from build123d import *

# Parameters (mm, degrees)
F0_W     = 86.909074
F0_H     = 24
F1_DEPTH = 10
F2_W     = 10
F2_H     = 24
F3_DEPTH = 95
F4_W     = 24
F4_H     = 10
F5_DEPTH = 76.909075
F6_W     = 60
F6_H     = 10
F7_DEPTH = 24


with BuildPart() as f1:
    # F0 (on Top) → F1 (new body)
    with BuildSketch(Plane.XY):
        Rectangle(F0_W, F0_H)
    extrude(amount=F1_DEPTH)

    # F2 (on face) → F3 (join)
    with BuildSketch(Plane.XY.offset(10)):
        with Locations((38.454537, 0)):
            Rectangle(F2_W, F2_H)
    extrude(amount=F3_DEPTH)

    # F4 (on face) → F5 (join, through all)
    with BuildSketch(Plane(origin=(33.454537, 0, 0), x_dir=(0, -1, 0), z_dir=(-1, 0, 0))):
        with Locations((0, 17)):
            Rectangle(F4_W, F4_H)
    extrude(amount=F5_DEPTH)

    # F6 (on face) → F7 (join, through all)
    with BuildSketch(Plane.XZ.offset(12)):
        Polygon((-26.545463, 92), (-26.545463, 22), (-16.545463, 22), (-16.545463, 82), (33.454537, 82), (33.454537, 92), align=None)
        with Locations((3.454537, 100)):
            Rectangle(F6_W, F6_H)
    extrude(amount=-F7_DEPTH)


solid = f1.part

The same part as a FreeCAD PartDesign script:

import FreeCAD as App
import Part
import Sketcher
Q = App.Units.Quantity

doc = App.newDocument("Part")
body = doc.addObject("PartDesign::Body", "Body")

sketch1 = doc.addObject("Sketcher::SketchObject", "Sketch")
body.addObject(sketch1)
sketch1.AttachmentSupport = (doc.XY_Plane, [""])
sketch1.MapMode = "FlatFace"
sketch1.addGeometry([
    Part.LineSegment(App.Vector(-43.454537, 12, 0), App.Vector(-43.454537, -12, 0)),
    Part.LineSegment(App.Vector(-43.454537, -12, 0), App.Vector(43.454537, -12, 0)),
    Part.LineSegment(App.Vector(43.454537, -12, 0), App.Vector(43.454537, 12, 0)),
    Part.LineSegment(App.Vector(43.454537, 12, 0), App.Vector(-43.454537, 12, 0)),
], False)
sketch1.addConstraint([
    Sketcher.Constraint("Coincident", 0, 2, 1, 1),
    Sketcher.Constraint("Coincident", 1, 2, 2, 1),
    Sketcher.Constraint("Coincident", 2, 2, 3, 1),
    Sketcher.Constraint("Coincident", 3, 2, 0, 1),
    Sketcher.Constraint("Vertical", 0),
    Sketcher.Constraint("Horizontal", 1),
    Sketcher.Constraint("Vertical", 2),
    Sketcher.Constraint("Horizontal", 3),
    Sketcher.Constraint("Symmetric", 0, 2, 2, 2, -1, 1),
    Sketcher.Constraint("DistanceY", 0, 2, 0, 1, Q("24 mm")),
    Sketcher.Constraint("DistanceX", 1, 1, 1, 2, Q("86.909074 mm")),
])
pad1 = doc.addObject("PartDesign::Pad", "Pad")
body.addObject(pad1)
pad1.Profile = sketch1
pad1.Length = 10

sketch2 = doc.addObject("Sketcher::SketchObject", "Sketch001")
body.addObject(sketch2)
sketch2.AttachmentSupport = (doc.XY_Plane, [""])
sketch2.MapMode = "FlatFace"
sketch2.AttachmentOffset = App.Placement(App.Vector(0, 0, 10), App.Rotation())
sketch2.addGeometry([
    Part.LineSegment(App.Vector(33.454537, 12, 0), App.Vector(33.454537, -12, 0)),
    Part.LineSegment(App.Vector(33.454537, -12, 0), App.Vector(43.454537, -12, 0)),
    Part.LineSegment(App.Vector(43.454537, -12, 0), App.Vector(43.454537, 12, 0)),
    Part.LineSegment(App.Vector(43.454537, 12, 0), App.Vector(33.454537, 12, 0)),
], False)
sketch2.addConstraint([
    Sketcher.Constraint("Coincident", 0, 2, 1, 1),
    Sketcher.Constraint("Coincident", 1, 2, 2, 1),
    Sketcher.Constraint("Coincident", 2, 2, 3, 1),
    Sketcher.Constraint("Coincident", 3, 2, 0, 1),
    Sketcher.Constraint("Vertical", 0),
    Sketcher.Constraint("Horizontal", 1),
    Sketcher.Constraint("Vertical", 2),
    Sketcher.Constraint("Horizontal", 3),
    Sketcher.Constraint("DistanceX", 1, 1, 1, 2, Q("10 mm")),
    Sketcher.Constraint("DistanceY", 0, 2, 0, 1, Q("24 mm")),
    Sketcher.Constraint("DistanceY", 0, 2, -1, 1, Q("12 mm")),
    Sketcher.Constraint("DistanceX", -1, 1, 0, 2, Q("33.454537 mm")),
])
pad2 = doc.addObject("PartDesign::Pad", "Pad001")
body.addObject(pad2)
pad2.Profile = sketch2
pad2.Length = 95

sketch3 = doc.addObject("Sketcher::SketchObject", "Sketch002")
body.addObject(sketch3)
sketch3.AttachmentSupport = (doc.YZ_Plane, [""])
sketch3.MapMode = "FlatFace"
sketch3.AttachmentOffset = App.Placement(App.Vector(0, 0, 33.454537), App.Rotation())
sketch3.addGeometry([
    Part.LineSegment(App.Vector(12, 22, 0), App.Vector(12, 12, 0)),
    Part.LineSegment(App.Vector(12, 12, 0), App.Vector(-12, 12, 0)),
    Part.LineSegment(App.Vector(-12, 12, 0), App.Vector(-12, 22, 0)),
    Part.LineSegment(App.Vector(-12, 22, 0), App.Vector(12, 22, 0)),
], False)
sketch3.addConstraint([
    Sketcher.Constraint("Coincident", 0, 2, 1, 1),
    Sketcher.Constraint("Coincident", 1, 2, 2, 1),
    Sketcher.Constraint("Coincident", 2, 2, 3, 1),
    Sketcher.Constraint("Coincident", 3, 2, 0, 1),
    Sketcher.Constraint("Vertical", 0),
    Sketcher.Constraint("Horizontal", 1),
    Sketcher.Constraint("Vertical", 2),
    Sketcher.Constraint("Horizontal", 3),
    Sketcher.Constraint("DistanceX", 1, 2, 1, 1, Q("24 mm")),
    Sketcher.Constraint("DistanceY", 0, 2, 0, 1, Q("10 mm")),
    Sketcher.Constraint("DistanceX", -1, 1, 0, 2, Q("12 mm")),
    Sketcher.Constraint("DistanceY", -1, 1, 0, 2, Q("12 mm")),
])
pad3 = doc.addObject("PartDesign::Pad", "Pad002")
body.addObject(pad3)
pad3.Profile = sketch3
pad3.Length = 76.909075
pad3.Reversed = True

sketch4 = doc.addObject("Sketcher::SketchObject", "Sketch003")
body.addObject(sketch4)
sketch4.AttachmentSupport = (doc.XZ_Plane, [""])
sketch4.MapMode = "FlatFace"
sketch4.AttachmentOffset = App.Placement(App.Vector(0, 0, 12), App.Rotation())
sketch4.addGeometry([
    Part.LineSegment(App.Vector(-26.545463, 92, 0), App.Vector(-26.545463, 22, 0)),
    Part.LineSegment(App.Vector(-26.545463, 22, 0), App.Vector(-16.545463, 22, 0)),
    Part.LineSegment(App.Vector(-16.545463, 22, 0), App.Vector(-16.545463, 82, 0)),
    Part.LineSegment(App.Vector(-16.545463, 82, 0), App.Vector(33.454537, 82, 0)),
    Part.LineSegment(App.Vector(33.454537, 82, 0), App.Vector(33.454537, 92, 0)),
    Part.LineSegment(App.Vector(33.454537, 92, 0), App.Vector(-26.545463, 92, 0)),
    Part.LineSegment(App.Vector(-26.545463, 105, 0), App.Vector(-26.545463, 95, 0)),
    Part.LineSegment(App.Vector(-26.545463, 95, 0), App.Vector(33.454537, 95, 0)),
    Part.LineSegment(App.Vector(33.454537, 95, 0), App.Vector(33.454537, 105, 0)),
    Part.LineSegment(App.Vector(33.454537, 105, 0), App.Vector(-26.545463, 105, 0)),
], False)
sketch4.addConstraint([
    Sketcher.Constraint("Coincident", 0, 2, 1, 1),
    Sketcher.Constraint("Coincident", 1, 2, 2, 1),
    Sketcher.Constraint("Coincident", 2, 2, 3, 1),
    Sketcher.Constraint("Coincident", 3, 2, 4, 1),
    Sketcher.Constraint("Coincident", 4, 2, 5, 1),
    Sketcher.Constraint("Coincident", 5, 2, 0, 1),
    Sketcher.Constraint("Coincident", 6, 2, 7, 1),
    Sketcher.Constraint("Coincident", 7, 2, 8, 1),
    Sketcher.Constraint("Coincident", 8, 2, 9, 1),
    Sketcher.Constraint("Coincident", 9, 2, 6, 1),
    Sketcher.Constraint("Vertical", 0),
    Sketcher.Constraint("Horizontal", 1),
    Sketcher.Constraint("Vertical", 2),
    Sketcher.Constraint("Horizontal", 3),
    Sketcher.Constraint("Vertical", 4),
    Sketcher.Constraint("Horizontal", 5),
    Sketcher.Constraint("Vertical", 6),
    Sketcher.Constraint("Horizontal", 7),
    Sketcher.Constraint("Vertical", 8),
    Sketcher.Constraint("Horizontal", 9),
    Sketcher.Constraint("Vertical", 5, 2, 6, 2),
    Sketcher.Constraint("Vertical", 4, 2, 7, 2),
    Sketcher.Constraint("Equal", 9, 2),
    Sketcher.Constraint("Equal", 1, 4),
    Sketcher.Constraint("Equal", 4, 6),
    Sketcher.Constraint("DistanceX", 1, 1, 1, 2, Q("10 mm")),
    Sketcher.Constraint("DistanceX", 3, 1, 3, 2, Q("50 mm")),
    Sketcher.Constraint("DistanceY", -1, 1, 0, 2, Q("22 mm")),
    Sketcher.Constraint("DistanceY", -1, 1, 6, 2, Q("95 mm")),
    Sketcher.Constraint("DistanceX", 0, 2, -1, 1, Q("26.545463 mm")),
])
pad4 = doc.addObject("PartDesign::Pad", "Pad003")
body.addObject(pad4)
pad4.Profile = sketch4
pad4.Length = 24
pad4.Reversed = True

doc.recompute()
